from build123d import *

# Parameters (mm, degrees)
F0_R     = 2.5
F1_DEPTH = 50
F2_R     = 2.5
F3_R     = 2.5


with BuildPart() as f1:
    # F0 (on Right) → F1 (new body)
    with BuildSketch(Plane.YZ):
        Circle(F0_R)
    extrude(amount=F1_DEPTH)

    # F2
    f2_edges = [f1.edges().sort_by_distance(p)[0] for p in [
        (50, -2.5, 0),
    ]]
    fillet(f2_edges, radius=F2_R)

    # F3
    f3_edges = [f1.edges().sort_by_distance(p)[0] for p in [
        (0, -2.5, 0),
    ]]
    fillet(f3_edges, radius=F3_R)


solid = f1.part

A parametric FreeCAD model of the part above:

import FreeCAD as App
import Part
import Sketcher
from FreeCAD import Vector


def edges_at(feature, points):
    """Names of the edges that pass closest to the given points."""
    edges = feature.Shape.Edges
    near = lambda p: min(range(len(edges)), key=lambda i: edges[i].distToShape(Part.Vertex(*p))[0])
    return sorted({f"Edge{near(p) + 1}" for p in points})

doc = App.newDocument("Part")
params = doc.addObject("Spreadsheet::Sheet", "Params")
for row, (alias, value) in enumerate([
    ("sketch1_diameter", "5 mm"),
    ("pad1_length", "50 mm"),
    ("fillet_radius", "2.5 mm"),
    ("fillet2_radius", "2.5 mm"),
], start=1):
    params.set(f"A{row}", alias)
    params.set(f"B{row}", "=" + value)
    params.setAlias(f"B{row}", alias)

body = doc.addObject("PartDesign::Body", "Body")

# Sketch on YZ plane
sketch1 = body.newObject("Sketcher::SketchObject", "Sketch")
sketch1.AttachmentSupport = (doc.getObject("YZ_Plane"), [""])
sketch1.MapMode = "FlatFace"
sketch1.addGeometry(Part.Circle(Vector(0, 0, 0), Vector(0, 0, 1), 2.5), False)
sketch1.addConstraint([
    Sketcher.Constraint("Coincident", 0, 3, -1, 1),
    Sketcher.Constraint("Diameter", 0, 5.0),
])
sketch1.setExpression("Constraints[1]", "Params.sketch1_diameter")
pad1 = body.newObject("PartDesign::Pad", "Pad")
pad1.Profile = sketch1
pad1.setExpression("Length", "Params.pad1_length")
doc.recompute()

fillet = body.newObject("PartDesign::Fillet", "Fillet")
fillet.Base = (pad1, edges_at(pad1, [(50, -2.5, 0)]))
fillet.setExpression("Radius", "Params.fillet_radius")
doc.recompute()

fillet2 = body.newObject("PartDesign::Fillet", "Fillet001")
fillet2.Base = (fillet, edges_at(fillet, [(0, -2.5, 0)]))
fillet2.setExpression("Radius", "Params.fillet2_radius")

doc.recompute()
